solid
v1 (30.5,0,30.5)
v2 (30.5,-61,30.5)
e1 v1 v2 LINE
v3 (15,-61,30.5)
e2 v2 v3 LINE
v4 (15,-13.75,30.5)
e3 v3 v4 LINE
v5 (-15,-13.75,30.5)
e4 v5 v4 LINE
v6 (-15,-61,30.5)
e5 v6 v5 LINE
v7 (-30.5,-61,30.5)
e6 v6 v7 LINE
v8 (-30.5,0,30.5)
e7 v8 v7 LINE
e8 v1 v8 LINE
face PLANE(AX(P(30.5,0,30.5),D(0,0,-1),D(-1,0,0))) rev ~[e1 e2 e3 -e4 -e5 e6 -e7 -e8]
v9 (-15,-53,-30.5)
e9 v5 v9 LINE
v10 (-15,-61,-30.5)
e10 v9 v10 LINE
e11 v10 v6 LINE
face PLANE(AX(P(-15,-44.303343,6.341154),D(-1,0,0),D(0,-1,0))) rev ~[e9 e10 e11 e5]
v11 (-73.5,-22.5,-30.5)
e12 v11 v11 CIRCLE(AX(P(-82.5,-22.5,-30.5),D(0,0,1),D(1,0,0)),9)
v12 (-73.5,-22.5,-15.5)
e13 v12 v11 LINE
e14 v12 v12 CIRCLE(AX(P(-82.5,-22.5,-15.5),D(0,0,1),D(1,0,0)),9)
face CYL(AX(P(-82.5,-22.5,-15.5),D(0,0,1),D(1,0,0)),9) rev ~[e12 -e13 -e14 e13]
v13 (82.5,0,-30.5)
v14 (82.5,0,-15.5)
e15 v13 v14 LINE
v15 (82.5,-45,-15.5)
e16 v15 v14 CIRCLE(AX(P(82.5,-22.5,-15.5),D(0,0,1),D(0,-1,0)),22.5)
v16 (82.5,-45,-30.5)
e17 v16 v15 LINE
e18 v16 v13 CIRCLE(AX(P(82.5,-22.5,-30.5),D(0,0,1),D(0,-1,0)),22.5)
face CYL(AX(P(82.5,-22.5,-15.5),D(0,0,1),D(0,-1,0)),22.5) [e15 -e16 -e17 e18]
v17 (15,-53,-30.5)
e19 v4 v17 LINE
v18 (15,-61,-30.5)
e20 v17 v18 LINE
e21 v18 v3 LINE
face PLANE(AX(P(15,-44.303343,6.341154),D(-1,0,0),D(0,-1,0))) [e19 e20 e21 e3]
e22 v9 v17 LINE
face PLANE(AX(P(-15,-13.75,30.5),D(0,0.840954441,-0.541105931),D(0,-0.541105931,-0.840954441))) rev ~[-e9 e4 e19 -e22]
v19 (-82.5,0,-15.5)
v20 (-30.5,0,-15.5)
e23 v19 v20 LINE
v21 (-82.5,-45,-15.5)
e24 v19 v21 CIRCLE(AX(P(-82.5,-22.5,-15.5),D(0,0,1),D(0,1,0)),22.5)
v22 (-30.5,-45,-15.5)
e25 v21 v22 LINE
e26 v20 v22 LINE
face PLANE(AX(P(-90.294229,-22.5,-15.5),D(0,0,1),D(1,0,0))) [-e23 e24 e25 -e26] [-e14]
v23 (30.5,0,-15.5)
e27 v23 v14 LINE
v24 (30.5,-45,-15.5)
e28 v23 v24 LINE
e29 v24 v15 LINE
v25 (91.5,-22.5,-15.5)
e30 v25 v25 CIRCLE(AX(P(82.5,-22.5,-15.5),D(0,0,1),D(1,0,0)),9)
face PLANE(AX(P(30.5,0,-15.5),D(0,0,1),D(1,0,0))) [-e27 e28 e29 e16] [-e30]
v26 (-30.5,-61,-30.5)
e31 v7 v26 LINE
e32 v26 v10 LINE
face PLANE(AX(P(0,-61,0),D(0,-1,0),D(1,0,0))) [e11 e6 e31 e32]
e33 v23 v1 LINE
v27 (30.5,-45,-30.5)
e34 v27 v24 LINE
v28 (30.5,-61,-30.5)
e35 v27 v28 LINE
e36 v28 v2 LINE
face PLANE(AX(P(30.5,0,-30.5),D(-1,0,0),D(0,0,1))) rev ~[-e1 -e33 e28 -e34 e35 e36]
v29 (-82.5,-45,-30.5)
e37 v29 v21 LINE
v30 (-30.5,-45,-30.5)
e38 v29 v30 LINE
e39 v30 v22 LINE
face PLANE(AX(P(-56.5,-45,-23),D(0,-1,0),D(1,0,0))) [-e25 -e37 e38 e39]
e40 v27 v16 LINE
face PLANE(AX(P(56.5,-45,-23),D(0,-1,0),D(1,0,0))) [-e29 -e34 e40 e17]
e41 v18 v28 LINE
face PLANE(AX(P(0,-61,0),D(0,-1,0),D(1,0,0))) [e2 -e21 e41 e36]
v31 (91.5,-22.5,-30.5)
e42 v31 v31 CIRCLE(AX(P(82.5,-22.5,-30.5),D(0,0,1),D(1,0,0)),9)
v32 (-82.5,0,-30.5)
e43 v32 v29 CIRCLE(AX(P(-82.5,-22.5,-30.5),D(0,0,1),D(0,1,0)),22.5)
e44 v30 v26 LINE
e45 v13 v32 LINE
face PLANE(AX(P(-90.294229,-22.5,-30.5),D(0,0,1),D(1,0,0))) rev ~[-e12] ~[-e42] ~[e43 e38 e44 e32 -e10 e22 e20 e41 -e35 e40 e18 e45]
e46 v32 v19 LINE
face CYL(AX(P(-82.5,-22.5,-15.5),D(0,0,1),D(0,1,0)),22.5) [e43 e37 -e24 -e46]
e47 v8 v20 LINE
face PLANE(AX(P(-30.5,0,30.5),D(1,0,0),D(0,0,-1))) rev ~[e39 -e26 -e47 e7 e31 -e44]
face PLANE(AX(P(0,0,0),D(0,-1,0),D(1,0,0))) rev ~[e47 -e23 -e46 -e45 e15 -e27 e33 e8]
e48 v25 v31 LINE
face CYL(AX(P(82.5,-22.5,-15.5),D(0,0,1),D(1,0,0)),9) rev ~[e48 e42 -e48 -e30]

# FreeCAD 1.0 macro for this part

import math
import FreeCAD as App
import Part
import Sketcher
from FreeCAD import Vector
Q = App.Units.Quantity

doc = App.newDocument("Part")
params = doc.addObject("Spreadsheet::Sheet", "Params")
for row, (alias, value) in enumerate([
    ("sketch1_width", "52 mm"),
    ("sketch1_height", "15 mm"),
    ("pad1_length", "45 mm"),
    ("sketch2_width", "52 mm"),
    ("sketch2_height", "15 mm"),
    ("pad2_length", "45 mm"),
    ("sketch3_width", "61 mm"),
    ("pad3_length", "61 mm"),
    ("sketch4_radius", "22.5 mm"),
    ("pad4_length", "15 mm"),
    ("sketch5_diameter", "18 mm"),
    ("pocket1_length", "15 mm"),
    ("sketch6_width", "8 mm"),
    ("sketch6_height", "61 mm"),
    ("sketch6_width2", "47.25 mm"),
    ("pocket2_length", "30 mm"),
], start=1):
    params.set(f"A{row}", alias)
    params.set(f"B{row}", "=" + value)
    params.setAlias(f"B{row}", alias)

body = doc.addObject("PartDesign::Body", "Body")

# Sketch on XZ plane
sketch1 = body.newObject("Sketcher::SketchObject", "Sketch")
sketch1.AttachmentSupport = (doc.getObject("XZ_Plane"), [""])
sketch1.MapMode = "FlatFace"
sketch1.addGeometry([
    Part.LineSegment(Vector(-82.5, -15.5, 0), Vector(-82.5, -30.5, 0)),
    Part.LineSegment(Vector(-82.5, -30.5, 0), Vector(-30.5, -30.5, 0)),
    Part.LineSegment(Vector(-30.5, -30.5, 0), Vector(-30.5, -15.5, 0)),
    Part.LineSegment(Vector(-30.5, -15.5, 0), Vector(-82.5, -15.5, 0)),
], False)
sketch1.addConstraint([
    Sketcher.Constraint("Coincident", 0, 2, 1, 1),
    Sketcher.Constraint("Coincident", 1, 2, 2, 1),
    Sketcher.Constraint("Coincident", 2, 2, 3, 1),
    Sketcher.Constraint("Coincident", 3, 2, 0, 1),
    Sketcher.Constraint("Vertical", 0),
    Sketcher.Constraint("Horizontal", 1),
    Sketcher.Constraint("Vertical", 2),
    Sketcher.Constraint("Horizontal", 3),
    Sketcher.Constraint("DistanceX", 1, 1, 1, 2, Q("52 mm")),
    Sketcher.Constraint("DistanceY", 0, 2, 0, 1, Q("15 mm")),
    Sketcher.Constraint("DistanceX", 0, 2, -1, 1, Q("82.5 mm")),
    Sketcher.Constraint("DistanceY", 0, 2, -1, 1, Q("30.5 mm")),
])
sketch1.setExpression("Constraints[8]", "Params.sketch1_width")
sketch1.setExpression("Constraints[9]", "Params.sketch1_height")
pad1 = body.newObject("PartDesign::Pad", "Pad")
pad1.Profile = sketch1
pad1.setExpression("Length", "Params.pad1_length")
body2 = doc.addObject("PartDesign::Body", "Body001")

# Sketch on XZ plane
sketch2 = body2.newObject("Sketcher::SketchObject", "Sketch001")
sketch2.AttachmentSupport = (doc.getObject("XZ_Plane001"), [""])
sketch2.MapMode = "FlatFace"
sketch2.addGeometry([
    Part.LineSegment(Vector(30.5, -15.5, 0), Vector(30.5, -30.5, 0)),
    Part.LineSegment(Vector(30.5, -30.5, 0), Vector(82.5, -30.5, 0)),
    Part.LineSegment(Vector(82.5, -30.5, 0), Vector(82.5, -15.5, 0)),
    Part.LineSegment(Vector(82.5, -15.5, 0), Vector(30.5, -15.5, 0)),
], False)
sketch2.addConstraint([
    Sketcher.Constraint("Coincident", 0, 2, 1, 1),
    Sketcher.Constraint("Coincident", 1, 2, 2, 1),
    Sketcher.Constraint("Coincident", 2, 2, 3, 1),
    Sketcher.Constraint("Coincident", 3, 2, 0, 1),
    Sketcher.Constraint("Vertical", 0),
    Sketcher.Constraint("Horizontal", 1),
    Sketcher.Constraint("Vertical", 2),
    Sketcher.Constraint("Horizontal", 3),
    Sketcher.Constraint("DistanceX", 1, 1, 1, 2, Q("52 mm")),
    Sketcher.Constraint("DistanceY", 0, 2, 0, 1, Q("15 mm")),
    Sketcher.Constraint("DistanceX", -1, 1, 0, 2, Q("30.5 mm")),
    Sketcher.Constraint("DistanceY", 0, 2, -1, 1, Q("30.5 mm")),
])
sketch2.setExpression("Constraints[8]", "Params.sketch2_width")
sketch2.setExpression("Constraints[9]", "Params.sketch2_height")
pad2 = body2.newObject("PartDesign::Pad", "Pad001")
pad2.Profile = sketch2
pad2.setExpression("Length", "Params.pad2_length")
body.AllowCompound = True
doc.recompute()

boolean = body.newObject("PartDesign::Boolean", "Boolean")
boolean.Type = "Fuse"
boolean.addObjects([body2])

# Sketch on XZ plane
sketch3 = body.newObject("Sketcher::SketchObject", "Sketch002")
sketch3.AttachmentSupport = (doc.getObject("XZ_Plane"), [""])
sketch3.MapMode = "FlatFace"
sketch3.addGeometry([
    Part.LineSegment(Vector(30.5, 30.5, 0), Vector(-30.5, 30.5, 0)),
    Part.LineSegment(Vector(-30.5, 30.5, 0), Vector(-30.5, -30.5, 0)),
    Part.LineSegment(Vector(-30.5, -30.5, 0), Vector(30.5, -30.5, 0)),
    Part.LineSegment(Vector(30.5, -30.5, 0), Vector(30.5, 30.5, 0)),
], False)
sketch3.addConstraint([
    Sketcher.Constraint("Coincident", 0, 2, 1, 1),
    Sketcher.Constraint("Coincident", 1, 2, 2, 1),
    Sketcher.Constraint("Coincident", 2, 2, 3, 1),
    Sketcher.Constraint("Coincident", 3, 2, 0, 1),
    Sketcher.Constraint("Horizontal", 0),
    Sketcher.Constraint("Vertical", 1),
    Sketcher.Constraint("Horizontal", 2),
    Sketcher.Constraint("Vertical", 3),
    Sketcher.Constraint("Symmetric", 0, 2, 2, 2, -1, 1),
    Sketcher.Constraint("Equal", 2, 1),
    Sketcher.Constraint("DistanceX", 0, 2, 0, 1, Q("61 mm")),
])
sketch3.setExpression("Constraints[10]", "Params.sketch3_width")
pad3 = body.newObject("PartDesign::Pad", "Pad002")
pad3.Profile = sketch3
pad3.setExpression("Length", "Params.pad3_length")

# Sketch on XY plane
sketch4 = body.newObject("Sketcher::SketchObject", "Sketch003")
sketch4.AttachmentSupport = (doc.getObject("XY_Plane"), [""])
sketch4.MapMode = "FlatFace"
sketch4.AttachmentOffset = App.Placement(Vector(0, 0, -15.5), App.Rotation())
sketch4.addGeometry([
    Part.LineSegment(Vector(-82.5, -45, 0), Vector(-82.5, 0, 0)),
    Part.ArcOfCircle(Part.Circle(Vector(-82.5, -22.5, 0), Vector(0, 0, 1), 22.5), math.radians(90), math.radians(270)),
    Part.LineSegment(Vector(82.5, 0, 0), Vector(82.5, -45, 0)),
    Part.ArcOfCircle(Part.Circle(Vector(82.5, -22.5, 0), Vector(0, 0, 1), 22.5), math.radians(-90), math.radians(90)),
], False)
sketch4.addConstraint([
    Sketcher.Constraint("Coincident", 0, 1, 1, 2),
    Sketcher.Constraint("Coincident", 1, 1, 0, 2),
    Sketcher.Constraint("Coincident", 2, 1, 3, 2),
    Sketcher.Constraint("Coincident", 3, 1, 2, 2),
    Sketcher.Constraint("Vertical", 0),
    Sketcher.Constraint("Vertical", 2),
    Sketcher.Constraint("Equal", 1, 3),
    Sketcher.Constraint("Symmetric", 1, 1, 2, 1, -1, 1),
    Sketcher.Constraint("Symmetric", 1, 3, 3, 3, -2),
    Sketcher.Constraint("Vertical", 1, 3, 0, 1),
    Sketcher.Constraint("Radius", 1, Q("22.5 mm")),
    Sketcher.Constraint("DistanceX", 1, 3, 3, 3, Q("165 mm")),
])
sketch4.setExpression("Constraints[10]", "Params.sketch4_radius")
pad4 = body.newObject("PartDesign::Pad", "Pad003")
pad4.Profile = sketch4
pad4.setExpression("Length", "Params.pad4_length")
pad4.Reversed = True

# Sketch on XY plane
sketch5 = body.newObject("Sketcher::SketchObject", "Sketch004")
sketch5.AttachmentSupport = (doc.getObject("XY_Plane"), [""])
sketch5.MapMode = "FlatFace"
sketch5.AttachmentOffset = App.Placement(Vector(0, 0, -15.5), App.Rotation())
sketch5.addGeometry([
    Part.Circle(Vector(82.5, -22.5, 0), Vector(0, 0, 1), 9),
    Part.Circle(Vector(-82.5, -22.5, 0), Vector(0, 0, 1), 9),
], False)
sketch5.addConstraint([
    Sketcher.Constraint("Equal", 0, 1),
    Sketcher.Constraint("Symmetric", 0, 3, 1, 3, -2),
    Sketcher.Constraint("Diameter", 0, Q("18 mm")),
    Sketcher.Constraint("DistanceX", 1, 3, 0, 3, Q("165 mm")),
    Sketcher.Constraint("DistanceY", 0, 3, -1, 1, Q("22.5 mm")),
])
sketch5.setExpression("Constraints[2]", "Params.sketch5_diameter")
pocket1 = body.newObject("PartDesign::Pocket", "Pocket")
pocket1.Profile = sketch5
pocket1.setExpression("Length", "Params.pocket1_length")

# Sketch on YZ plane
sketch6 = body.newObject("Sketcher::SketchObject", "Sketch005")
sketch6.AttachmentSupport = (doc.getObject("YZ_Plane"), [""])
sketch6.MapMode = "FlatFace"
sketch6.AttachmentOffset = App.Placement(Vector(0, 0, -15), App.Rotation())
sketch6.addGeometry([
    Part.LineSegment(Vector(-61, 30.5, 0), Vector(-13.75, 30.5, 0)),
    Part.LineSegment(Vector(-13.75, 30.5, 0), Vector(-53, -30.5, 0)),
    Part.LineSegment(Vector(-53, -30.5, 0), Vector(-61, -30.5, 0)),
    Part.LineSegment(Vector(-61, -30.5, 0), Vector(-61, 30.5, 0)),
], False)
sketch6.addConstraint([
    Sketcher.Constraint("Coincident", 0, 2, 1, 1),
    Sketcher.Constraint("Coincident", 1, 2, 2, 1),
    Sketcher.Constraint("Coincident", 2, 2, 3, 1),
    Sketcher.Constraint("Coincident", 3, 2, 0, 1),
    Sketcher.Constraint("Horizontal", 0),
    Sketcher.Constraint("Horizontal", 2),
    Sketcher.Constraint("Vertical", 3),
    Sketcher.Constraint("DistanceX", 2, 2, 2, 1, Q("8 mm")),
    Sketcher.Constraint("DistanceY", 3, 1, 3, 2, Q("61 mm")),
    Sketcher.Constraint("DistanceX", 1, 2, -1, 1, Q("53 mm")),
    Sketcher.Constraint("DistanceX", 0, 1, 0, 2, Q("47.25 mm")),
    Sketcher.Constraint("DistanceY", -1, 1, 0, 2, Q("30.5 mm")),
])
sketch6.setExpression("Constraints[7]", "Params.sketch6_width")
sketch6.setExpression("Constraints[8]", "Params.sketch6_height")
sketch6.setExpression("Constraints[10]", "Params.sketch6_width2")
pocket2 = body.newObject("PartDesign::Pocket", "Pocket001")
pocket2.Profile = sketch6
pocket2.setExpression("Length", "Params.pocket2_length")
pocket2.Reversed = True

doc.recompute()
